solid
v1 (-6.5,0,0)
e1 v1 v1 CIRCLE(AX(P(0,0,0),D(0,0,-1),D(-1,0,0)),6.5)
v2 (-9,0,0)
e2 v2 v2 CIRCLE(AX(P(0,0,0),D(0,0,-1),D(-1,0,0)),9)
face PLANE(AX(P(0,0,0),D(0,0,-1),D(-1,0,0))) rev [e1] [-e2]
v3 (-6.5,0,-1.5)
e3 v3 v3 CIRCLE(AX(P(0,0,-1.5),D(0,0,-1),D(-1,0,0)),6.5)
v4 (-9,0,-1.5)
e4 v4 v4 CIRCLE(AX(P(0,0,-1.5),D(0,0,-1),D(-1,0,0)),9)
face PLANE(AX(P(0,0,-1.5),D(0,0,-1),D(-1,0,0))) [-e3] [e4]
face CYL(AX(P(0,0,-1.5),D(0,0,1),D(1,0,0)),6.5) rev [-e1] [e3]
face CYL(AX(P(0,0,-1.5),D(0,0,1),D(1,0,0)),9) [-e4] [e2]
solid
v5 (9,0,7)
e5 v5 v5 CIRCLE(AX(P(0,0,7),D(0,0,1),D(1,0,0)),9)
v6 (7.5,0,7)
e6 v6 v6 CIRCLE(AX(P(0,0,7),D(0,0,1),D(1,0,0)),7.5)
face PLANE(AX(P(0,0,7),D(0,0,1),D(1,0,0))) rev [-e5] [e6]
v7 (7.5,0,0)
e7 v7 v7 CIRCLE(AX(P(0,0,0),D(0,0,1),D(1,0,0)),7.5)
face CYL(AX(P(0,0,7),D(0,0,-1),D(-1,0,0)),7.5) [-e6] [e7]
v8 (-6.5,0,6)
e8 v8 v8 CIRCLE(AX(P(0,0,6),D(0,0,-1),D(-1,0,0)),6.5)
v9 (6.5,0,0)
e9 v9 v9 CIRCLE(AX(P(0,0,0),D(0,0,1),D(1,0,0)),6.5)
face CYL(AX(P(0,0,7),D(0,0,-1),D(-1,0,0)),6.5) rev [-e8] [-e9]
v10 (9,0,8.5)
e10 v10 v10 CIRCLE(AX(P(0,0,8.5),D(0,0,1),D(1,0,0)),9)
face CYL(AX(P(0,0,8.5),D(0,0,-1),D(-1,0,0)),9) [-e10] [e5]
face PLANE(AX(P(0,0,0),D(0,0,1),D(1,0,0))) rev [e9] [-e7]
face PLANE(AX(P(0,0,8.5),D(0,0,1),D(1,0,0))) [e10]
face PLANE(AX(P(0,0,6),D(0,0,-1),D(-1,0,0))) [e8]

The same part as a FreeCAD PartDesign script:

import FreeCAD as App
import Part
import Sketcher

V = App.Vector

doc = App.newDocument("Part")
body = doc.addObject("PartDesign::Body", "Body")

# Sketch on XY plane
sketch1 = body.newObject("Sketcher::SketchObject", "Sketch")
sketch1.AttachmentSupport = (doc.getObject("XY_Plane"), [""])
sketch1.MapMode = "FlatFace"
sketch1.addGeometry([
    Part.Circle(V(0, 0, 0), V(0, 0, 1), 8),
    Part.Circle(V(0, 0, 0), V(0, 0, 1), 6),
], False)
sketch1.addConstraint([
    Sketcher.Constraint("Coincident", 0, 3, -1, 1),
    Sketcher.Constraint("Coincident", 1, 3, -1, 1),
    Sketcher.Constraint("Diameter", 0, 15.0),
    Sketcher.Constraint("Diameter", 1, 13.0),
])
pad1 = body.newObject("PartDesign::Pad", "Pad")
pad1.Profile = sketch1
pad1.Length = 7

# Sketch on XY plane
sketch2 = body.newObject("Sketcher::SketchObject", "Sketch001")
sketch2.AttachmentSupport = (doc.getObject("XY_Plane"), [""])
sketch2.MapMode = "FlatFace"
sketch2.AttachmentOffset = App.Placement(V(0, 0, 7), App.Rotation())
sketch2.addGeometry(Part.Circle(V(0, 0, 0), V(0, 0, 1), 9), False)
sketch2.addConstraint([
    Sketcher.Constraint("Coincident", 0, 3, -1, 1),
    Sketcher.Constraint("Diameter", 0, 18.0),
])
pad2 = body.newObject("PartDesign::Pad", "Pad001")
pad2.Profile = sketch2
pad2.Length = 1.5

# Sketch on XY plane
sketch3 = body.newObject("Sketcher::SketchObject", "Sketch002")
sketch3.AttachmentSupport = (doc.getObject("XY_Plane"), [""])
sketch3.MapMode = "FlatFace"
sketch3.AttachmentOffset = App.Placement(V(0, 0, 6), App.Rotation())
sketch3.addGeometry(Part.Circle(V(0, 0, 0), V(0, 0, 1), 6), False)
sketch3.addConstraint([
    Sketcher.Constraint("Coincident", 0, 3, -1, 1),
    Sketcher.Constraint("Diameter", 0, 13.0),
])
pad3 = body.newObject("PartDesign::Pad", "Pad002")
pad3.Profile = sketch3
pad3.Length = 1
body2 = doc.addObject("PartDesign::Body", "Body001")

# Sketch on XY plane
sketch4 = body2.newObject("Sketcher::SketchObject", "Sketch003")
sketch4.AttachmentSupport = (doc.getObject("XY_Plane001"), [""])
sketch4.MapMode = "FlatFace"
sketch4.addGeometry([
    Part.Circle(V(0, 0, 0), V(0, 0, 1), 9),
    Part.Circle(V(0, 0, 0), V(0, 0, 1), 6),
], False)
sketch4.addConstraint([
    Sketcher.Constraint("Coincident", 0, 3, -1, 1),
    Sketcher.Constraint("Coincident", 1, 3, -1, 1),
    Sketcher.Constraint("Diameter", 0, 18.0),
    Sketcher.Constraint("Diameter", 1, 13.0),
])
pad4 = body2.newObject("PartDesign::Pad", "Pad003")
pad4.Profile = sketch4
pad4.Length = 1.5
pad4.Reversed = True

doc.recompute()
